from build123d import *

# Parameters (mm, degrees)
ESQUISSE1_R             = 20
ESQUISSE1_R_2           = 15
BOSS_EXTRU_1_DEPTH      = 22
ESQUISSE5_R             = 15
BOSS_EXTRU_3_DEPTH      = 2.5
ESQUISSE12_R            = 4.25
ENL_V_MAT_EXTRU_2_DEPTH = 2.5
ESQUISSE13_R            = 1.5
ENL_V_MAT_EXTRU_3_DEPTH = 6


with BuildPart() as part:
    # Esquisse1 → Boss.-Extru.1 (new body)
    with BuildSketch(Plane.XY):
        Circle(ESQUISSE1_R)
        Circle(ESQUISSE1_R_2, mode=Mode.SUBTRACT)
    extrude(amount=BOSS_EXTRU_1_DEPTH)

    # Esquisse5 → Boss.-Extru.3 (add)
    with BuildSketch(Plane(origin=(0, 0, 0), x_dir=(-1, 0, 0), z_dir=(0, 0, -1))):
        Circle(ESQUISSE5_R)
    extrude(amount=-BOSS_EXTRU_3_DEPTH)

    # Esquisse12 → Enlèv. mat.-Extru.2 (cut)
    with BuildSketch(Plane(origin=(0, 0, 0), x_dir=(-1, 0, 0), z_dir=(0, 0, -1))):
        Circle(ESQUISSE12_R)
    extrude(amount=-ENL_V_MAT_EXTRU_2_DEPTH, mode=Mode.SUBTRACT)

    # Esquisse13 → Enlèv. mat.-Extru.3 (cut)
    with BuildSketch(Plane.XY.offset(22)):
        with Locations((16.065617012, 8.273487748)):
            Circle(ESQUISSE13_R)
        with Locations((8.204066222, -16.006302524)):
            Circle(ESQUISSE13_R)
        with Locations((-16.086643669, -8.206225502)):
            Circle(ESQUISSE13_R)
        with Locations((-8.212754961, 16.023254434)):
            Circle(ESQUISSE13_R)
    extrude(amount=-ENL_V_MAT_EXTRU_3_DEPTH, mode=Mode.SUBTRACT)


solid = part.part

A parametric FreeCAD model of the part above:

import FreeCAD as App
import Part
import Sketcher
Q = App.Units.Quantity

doc = App.newDocument("Part")
body = doc.addObject("PartDesign::Body", "Body")

# Sketch on XY plane
sketch1 = doc.addObject("Sketcher::SketchObject", "Sketch")
body.addObject(sketch1)
sketch1.AttachmentSupport = (doc.XY_Plane, [""])
sketch1.MapMode = "FlatFace"
sketch1.addGeometry(Part.Circle(App.Vector(0, 0, 0), App.Vector(0, 0, 1), 20), False)
sketch1.addGeometry(Part.Circle(App.Vector(0, 0, 0), App.Vector(0, 0, 1), 15), False)
sketch1.addConstraint(Sketcher.Constraint("Coincident", 0, 3, -1, 1))
sketch1.addConstraint(Sketcher.Constraint("Coincident", 1, 3, -1, 1))
sketch1.addConstraint(Sketcher.Constraint("Diameter", 0, Q("40 mm")))
sketch1.addConstraint(Sketcher.Constraint("Diameter", 1, Q("30 mm")))
pad1 = doc.addObject("PartDesign::Pad", "Pad")
body.addObject(pad1)
pad1.Profile = sketch1
pad1.Length = 22

# Sketch on XY plane
sketch2 = doc.addObject("Sketcher::SketchObject", "Sketch001")
body.addObject(sketch2)
sketch2.AttachmentSupport = (doc.XY_Plane, [""])
sketch2.MapMode = "FlatFace"
sketch2.addGeometry(Part.Circle(App.Vector(0, 0, 0), App.Vector(0, 0, 1), 15), False)
sketch2.addConstraint(Sketcher.Constraint("Coincident", 0, 3, -1, 1))
sketch2.addConstraint(Sketcher.Constraint("Diameter", 0, Q("30 mm")))
pad2 = doc.addObject("PartDesign::Pad", "Pad001")
body.addObject(pad2)
pad2.Profile = sketch2
pad2.Length = 2.5

# Sketch on XY plane
sketch3 = doc.addObject("Sketcher::SketchObject", "Sketch002")
body.addObject(sketch3)
sketch3.AttachmentSupport = (doc.XY_Plane, [""])
sketch3.MapMode = "FlatFace"
sketch3.addGeometry(Part.Circle(App.Vector(0, 0, 0), App.Vector(0, 0, 1), 4.25), False)
sketch3.addConstraint(Sketcher.Constraint("Coincident", 0, 3, -1, 1))
sketch3.addConstraint(Sketcher.Constraint("Diameter", 0, Q("8.5 mm")))
pocket1 = doc.addObject("PartDesign::Pocket", "Pocket")
body.addObject(pocket1)
pocket1.Profile = sketch3
pocket1.Length = 2.5
pocket1.Reversed = True

# Sketch on XY plane
sketch4 = doc.addObject("Sketcher::SketchObject", "Sketch003")
body.addObject(sketch4)
sketch4.AttachmentSupport = (doc.XY_Plane, [""])
sketch4.MapMode = "FlatFace"
sketch4.AttachmentOffset = App.Placement(App.Vector(0, 0, 22), App.Rotation())
sketch4.addGeometry(Part.Circle(App.Vector(16.065617, 8.273488, 0), App.Vector(0, 0, 1), 1.5), False)
sketch4.addGeometry(Part.Circle(App.Vector(8.204066, -16.006303, 0), App.Vector(0, 0, 1), 1.5), False)
sketch4.addGeometry(Part.Circle(App.Vector(-16.086644, -8.206226, 0), App.Vector(0, 0, 1), 1.5), False)
sketch4.addGeometry(Part.Circle(App.Vector(-8.212755, 16.023254, 0), App.Vector(0, 0, 1), 1.5), False)
sketch4.addConstraint(Sketcher.Constraint("Equal", 0, 1))
sketch4.addConstraint(Sketcher.Constraint("Equal", 1, 2))
sketch4.addConstraint(Sketcher.Constraint("Equal", 2, 3))
sketch4.addConstraint(Sketcher.Constraint("Diameter", 0, Q("3 mm")))
sketch4.addConstraint(Sketcher.Constraint("DistanceX", 1, 3, 0, 3, Q("7.861551 mm")))
sketch4.addConstraint(Sketcher.Constraint("DistanceY", 1, 3, 0, 3, Q("24.27979 mm")))
sketch4.addConstraint(Sketcher.Constraint("DistanceX", 2, 3, 1, 3, Q("24.29071 mm")))
sketch4.addConstraint(Sketcher.Constraint("DistanceX", 2, 3, 3, 3, Q("7.873889 mm")))
sketch4.addConstraint(Sketcher.Constraint("DistanceY", 2, 3, 3, 3, Q("24.22948 mm")))
sketch4.addConstraint(Sketcher.Constraint("DistanceX", -1, 1, 0, 3, Q("16.065617 mm")))
sketch4.addConstraint(Sketcher.Constraint("DistanceY", -1, 1, 0, 3, Q("8.273488 mm")))
sketch4.addConstraint(Sketcher.Constraint("DistanceY", 2, 3, -1, 1, Q("8.206226 mm")))
pocket2 = doc.addObject("PartDesign::Pocket", "Pocket001")
body.addObject(pocket2)
pocket2.Profile = sketch4
pocket2.Length = 6

doc.recompute()
